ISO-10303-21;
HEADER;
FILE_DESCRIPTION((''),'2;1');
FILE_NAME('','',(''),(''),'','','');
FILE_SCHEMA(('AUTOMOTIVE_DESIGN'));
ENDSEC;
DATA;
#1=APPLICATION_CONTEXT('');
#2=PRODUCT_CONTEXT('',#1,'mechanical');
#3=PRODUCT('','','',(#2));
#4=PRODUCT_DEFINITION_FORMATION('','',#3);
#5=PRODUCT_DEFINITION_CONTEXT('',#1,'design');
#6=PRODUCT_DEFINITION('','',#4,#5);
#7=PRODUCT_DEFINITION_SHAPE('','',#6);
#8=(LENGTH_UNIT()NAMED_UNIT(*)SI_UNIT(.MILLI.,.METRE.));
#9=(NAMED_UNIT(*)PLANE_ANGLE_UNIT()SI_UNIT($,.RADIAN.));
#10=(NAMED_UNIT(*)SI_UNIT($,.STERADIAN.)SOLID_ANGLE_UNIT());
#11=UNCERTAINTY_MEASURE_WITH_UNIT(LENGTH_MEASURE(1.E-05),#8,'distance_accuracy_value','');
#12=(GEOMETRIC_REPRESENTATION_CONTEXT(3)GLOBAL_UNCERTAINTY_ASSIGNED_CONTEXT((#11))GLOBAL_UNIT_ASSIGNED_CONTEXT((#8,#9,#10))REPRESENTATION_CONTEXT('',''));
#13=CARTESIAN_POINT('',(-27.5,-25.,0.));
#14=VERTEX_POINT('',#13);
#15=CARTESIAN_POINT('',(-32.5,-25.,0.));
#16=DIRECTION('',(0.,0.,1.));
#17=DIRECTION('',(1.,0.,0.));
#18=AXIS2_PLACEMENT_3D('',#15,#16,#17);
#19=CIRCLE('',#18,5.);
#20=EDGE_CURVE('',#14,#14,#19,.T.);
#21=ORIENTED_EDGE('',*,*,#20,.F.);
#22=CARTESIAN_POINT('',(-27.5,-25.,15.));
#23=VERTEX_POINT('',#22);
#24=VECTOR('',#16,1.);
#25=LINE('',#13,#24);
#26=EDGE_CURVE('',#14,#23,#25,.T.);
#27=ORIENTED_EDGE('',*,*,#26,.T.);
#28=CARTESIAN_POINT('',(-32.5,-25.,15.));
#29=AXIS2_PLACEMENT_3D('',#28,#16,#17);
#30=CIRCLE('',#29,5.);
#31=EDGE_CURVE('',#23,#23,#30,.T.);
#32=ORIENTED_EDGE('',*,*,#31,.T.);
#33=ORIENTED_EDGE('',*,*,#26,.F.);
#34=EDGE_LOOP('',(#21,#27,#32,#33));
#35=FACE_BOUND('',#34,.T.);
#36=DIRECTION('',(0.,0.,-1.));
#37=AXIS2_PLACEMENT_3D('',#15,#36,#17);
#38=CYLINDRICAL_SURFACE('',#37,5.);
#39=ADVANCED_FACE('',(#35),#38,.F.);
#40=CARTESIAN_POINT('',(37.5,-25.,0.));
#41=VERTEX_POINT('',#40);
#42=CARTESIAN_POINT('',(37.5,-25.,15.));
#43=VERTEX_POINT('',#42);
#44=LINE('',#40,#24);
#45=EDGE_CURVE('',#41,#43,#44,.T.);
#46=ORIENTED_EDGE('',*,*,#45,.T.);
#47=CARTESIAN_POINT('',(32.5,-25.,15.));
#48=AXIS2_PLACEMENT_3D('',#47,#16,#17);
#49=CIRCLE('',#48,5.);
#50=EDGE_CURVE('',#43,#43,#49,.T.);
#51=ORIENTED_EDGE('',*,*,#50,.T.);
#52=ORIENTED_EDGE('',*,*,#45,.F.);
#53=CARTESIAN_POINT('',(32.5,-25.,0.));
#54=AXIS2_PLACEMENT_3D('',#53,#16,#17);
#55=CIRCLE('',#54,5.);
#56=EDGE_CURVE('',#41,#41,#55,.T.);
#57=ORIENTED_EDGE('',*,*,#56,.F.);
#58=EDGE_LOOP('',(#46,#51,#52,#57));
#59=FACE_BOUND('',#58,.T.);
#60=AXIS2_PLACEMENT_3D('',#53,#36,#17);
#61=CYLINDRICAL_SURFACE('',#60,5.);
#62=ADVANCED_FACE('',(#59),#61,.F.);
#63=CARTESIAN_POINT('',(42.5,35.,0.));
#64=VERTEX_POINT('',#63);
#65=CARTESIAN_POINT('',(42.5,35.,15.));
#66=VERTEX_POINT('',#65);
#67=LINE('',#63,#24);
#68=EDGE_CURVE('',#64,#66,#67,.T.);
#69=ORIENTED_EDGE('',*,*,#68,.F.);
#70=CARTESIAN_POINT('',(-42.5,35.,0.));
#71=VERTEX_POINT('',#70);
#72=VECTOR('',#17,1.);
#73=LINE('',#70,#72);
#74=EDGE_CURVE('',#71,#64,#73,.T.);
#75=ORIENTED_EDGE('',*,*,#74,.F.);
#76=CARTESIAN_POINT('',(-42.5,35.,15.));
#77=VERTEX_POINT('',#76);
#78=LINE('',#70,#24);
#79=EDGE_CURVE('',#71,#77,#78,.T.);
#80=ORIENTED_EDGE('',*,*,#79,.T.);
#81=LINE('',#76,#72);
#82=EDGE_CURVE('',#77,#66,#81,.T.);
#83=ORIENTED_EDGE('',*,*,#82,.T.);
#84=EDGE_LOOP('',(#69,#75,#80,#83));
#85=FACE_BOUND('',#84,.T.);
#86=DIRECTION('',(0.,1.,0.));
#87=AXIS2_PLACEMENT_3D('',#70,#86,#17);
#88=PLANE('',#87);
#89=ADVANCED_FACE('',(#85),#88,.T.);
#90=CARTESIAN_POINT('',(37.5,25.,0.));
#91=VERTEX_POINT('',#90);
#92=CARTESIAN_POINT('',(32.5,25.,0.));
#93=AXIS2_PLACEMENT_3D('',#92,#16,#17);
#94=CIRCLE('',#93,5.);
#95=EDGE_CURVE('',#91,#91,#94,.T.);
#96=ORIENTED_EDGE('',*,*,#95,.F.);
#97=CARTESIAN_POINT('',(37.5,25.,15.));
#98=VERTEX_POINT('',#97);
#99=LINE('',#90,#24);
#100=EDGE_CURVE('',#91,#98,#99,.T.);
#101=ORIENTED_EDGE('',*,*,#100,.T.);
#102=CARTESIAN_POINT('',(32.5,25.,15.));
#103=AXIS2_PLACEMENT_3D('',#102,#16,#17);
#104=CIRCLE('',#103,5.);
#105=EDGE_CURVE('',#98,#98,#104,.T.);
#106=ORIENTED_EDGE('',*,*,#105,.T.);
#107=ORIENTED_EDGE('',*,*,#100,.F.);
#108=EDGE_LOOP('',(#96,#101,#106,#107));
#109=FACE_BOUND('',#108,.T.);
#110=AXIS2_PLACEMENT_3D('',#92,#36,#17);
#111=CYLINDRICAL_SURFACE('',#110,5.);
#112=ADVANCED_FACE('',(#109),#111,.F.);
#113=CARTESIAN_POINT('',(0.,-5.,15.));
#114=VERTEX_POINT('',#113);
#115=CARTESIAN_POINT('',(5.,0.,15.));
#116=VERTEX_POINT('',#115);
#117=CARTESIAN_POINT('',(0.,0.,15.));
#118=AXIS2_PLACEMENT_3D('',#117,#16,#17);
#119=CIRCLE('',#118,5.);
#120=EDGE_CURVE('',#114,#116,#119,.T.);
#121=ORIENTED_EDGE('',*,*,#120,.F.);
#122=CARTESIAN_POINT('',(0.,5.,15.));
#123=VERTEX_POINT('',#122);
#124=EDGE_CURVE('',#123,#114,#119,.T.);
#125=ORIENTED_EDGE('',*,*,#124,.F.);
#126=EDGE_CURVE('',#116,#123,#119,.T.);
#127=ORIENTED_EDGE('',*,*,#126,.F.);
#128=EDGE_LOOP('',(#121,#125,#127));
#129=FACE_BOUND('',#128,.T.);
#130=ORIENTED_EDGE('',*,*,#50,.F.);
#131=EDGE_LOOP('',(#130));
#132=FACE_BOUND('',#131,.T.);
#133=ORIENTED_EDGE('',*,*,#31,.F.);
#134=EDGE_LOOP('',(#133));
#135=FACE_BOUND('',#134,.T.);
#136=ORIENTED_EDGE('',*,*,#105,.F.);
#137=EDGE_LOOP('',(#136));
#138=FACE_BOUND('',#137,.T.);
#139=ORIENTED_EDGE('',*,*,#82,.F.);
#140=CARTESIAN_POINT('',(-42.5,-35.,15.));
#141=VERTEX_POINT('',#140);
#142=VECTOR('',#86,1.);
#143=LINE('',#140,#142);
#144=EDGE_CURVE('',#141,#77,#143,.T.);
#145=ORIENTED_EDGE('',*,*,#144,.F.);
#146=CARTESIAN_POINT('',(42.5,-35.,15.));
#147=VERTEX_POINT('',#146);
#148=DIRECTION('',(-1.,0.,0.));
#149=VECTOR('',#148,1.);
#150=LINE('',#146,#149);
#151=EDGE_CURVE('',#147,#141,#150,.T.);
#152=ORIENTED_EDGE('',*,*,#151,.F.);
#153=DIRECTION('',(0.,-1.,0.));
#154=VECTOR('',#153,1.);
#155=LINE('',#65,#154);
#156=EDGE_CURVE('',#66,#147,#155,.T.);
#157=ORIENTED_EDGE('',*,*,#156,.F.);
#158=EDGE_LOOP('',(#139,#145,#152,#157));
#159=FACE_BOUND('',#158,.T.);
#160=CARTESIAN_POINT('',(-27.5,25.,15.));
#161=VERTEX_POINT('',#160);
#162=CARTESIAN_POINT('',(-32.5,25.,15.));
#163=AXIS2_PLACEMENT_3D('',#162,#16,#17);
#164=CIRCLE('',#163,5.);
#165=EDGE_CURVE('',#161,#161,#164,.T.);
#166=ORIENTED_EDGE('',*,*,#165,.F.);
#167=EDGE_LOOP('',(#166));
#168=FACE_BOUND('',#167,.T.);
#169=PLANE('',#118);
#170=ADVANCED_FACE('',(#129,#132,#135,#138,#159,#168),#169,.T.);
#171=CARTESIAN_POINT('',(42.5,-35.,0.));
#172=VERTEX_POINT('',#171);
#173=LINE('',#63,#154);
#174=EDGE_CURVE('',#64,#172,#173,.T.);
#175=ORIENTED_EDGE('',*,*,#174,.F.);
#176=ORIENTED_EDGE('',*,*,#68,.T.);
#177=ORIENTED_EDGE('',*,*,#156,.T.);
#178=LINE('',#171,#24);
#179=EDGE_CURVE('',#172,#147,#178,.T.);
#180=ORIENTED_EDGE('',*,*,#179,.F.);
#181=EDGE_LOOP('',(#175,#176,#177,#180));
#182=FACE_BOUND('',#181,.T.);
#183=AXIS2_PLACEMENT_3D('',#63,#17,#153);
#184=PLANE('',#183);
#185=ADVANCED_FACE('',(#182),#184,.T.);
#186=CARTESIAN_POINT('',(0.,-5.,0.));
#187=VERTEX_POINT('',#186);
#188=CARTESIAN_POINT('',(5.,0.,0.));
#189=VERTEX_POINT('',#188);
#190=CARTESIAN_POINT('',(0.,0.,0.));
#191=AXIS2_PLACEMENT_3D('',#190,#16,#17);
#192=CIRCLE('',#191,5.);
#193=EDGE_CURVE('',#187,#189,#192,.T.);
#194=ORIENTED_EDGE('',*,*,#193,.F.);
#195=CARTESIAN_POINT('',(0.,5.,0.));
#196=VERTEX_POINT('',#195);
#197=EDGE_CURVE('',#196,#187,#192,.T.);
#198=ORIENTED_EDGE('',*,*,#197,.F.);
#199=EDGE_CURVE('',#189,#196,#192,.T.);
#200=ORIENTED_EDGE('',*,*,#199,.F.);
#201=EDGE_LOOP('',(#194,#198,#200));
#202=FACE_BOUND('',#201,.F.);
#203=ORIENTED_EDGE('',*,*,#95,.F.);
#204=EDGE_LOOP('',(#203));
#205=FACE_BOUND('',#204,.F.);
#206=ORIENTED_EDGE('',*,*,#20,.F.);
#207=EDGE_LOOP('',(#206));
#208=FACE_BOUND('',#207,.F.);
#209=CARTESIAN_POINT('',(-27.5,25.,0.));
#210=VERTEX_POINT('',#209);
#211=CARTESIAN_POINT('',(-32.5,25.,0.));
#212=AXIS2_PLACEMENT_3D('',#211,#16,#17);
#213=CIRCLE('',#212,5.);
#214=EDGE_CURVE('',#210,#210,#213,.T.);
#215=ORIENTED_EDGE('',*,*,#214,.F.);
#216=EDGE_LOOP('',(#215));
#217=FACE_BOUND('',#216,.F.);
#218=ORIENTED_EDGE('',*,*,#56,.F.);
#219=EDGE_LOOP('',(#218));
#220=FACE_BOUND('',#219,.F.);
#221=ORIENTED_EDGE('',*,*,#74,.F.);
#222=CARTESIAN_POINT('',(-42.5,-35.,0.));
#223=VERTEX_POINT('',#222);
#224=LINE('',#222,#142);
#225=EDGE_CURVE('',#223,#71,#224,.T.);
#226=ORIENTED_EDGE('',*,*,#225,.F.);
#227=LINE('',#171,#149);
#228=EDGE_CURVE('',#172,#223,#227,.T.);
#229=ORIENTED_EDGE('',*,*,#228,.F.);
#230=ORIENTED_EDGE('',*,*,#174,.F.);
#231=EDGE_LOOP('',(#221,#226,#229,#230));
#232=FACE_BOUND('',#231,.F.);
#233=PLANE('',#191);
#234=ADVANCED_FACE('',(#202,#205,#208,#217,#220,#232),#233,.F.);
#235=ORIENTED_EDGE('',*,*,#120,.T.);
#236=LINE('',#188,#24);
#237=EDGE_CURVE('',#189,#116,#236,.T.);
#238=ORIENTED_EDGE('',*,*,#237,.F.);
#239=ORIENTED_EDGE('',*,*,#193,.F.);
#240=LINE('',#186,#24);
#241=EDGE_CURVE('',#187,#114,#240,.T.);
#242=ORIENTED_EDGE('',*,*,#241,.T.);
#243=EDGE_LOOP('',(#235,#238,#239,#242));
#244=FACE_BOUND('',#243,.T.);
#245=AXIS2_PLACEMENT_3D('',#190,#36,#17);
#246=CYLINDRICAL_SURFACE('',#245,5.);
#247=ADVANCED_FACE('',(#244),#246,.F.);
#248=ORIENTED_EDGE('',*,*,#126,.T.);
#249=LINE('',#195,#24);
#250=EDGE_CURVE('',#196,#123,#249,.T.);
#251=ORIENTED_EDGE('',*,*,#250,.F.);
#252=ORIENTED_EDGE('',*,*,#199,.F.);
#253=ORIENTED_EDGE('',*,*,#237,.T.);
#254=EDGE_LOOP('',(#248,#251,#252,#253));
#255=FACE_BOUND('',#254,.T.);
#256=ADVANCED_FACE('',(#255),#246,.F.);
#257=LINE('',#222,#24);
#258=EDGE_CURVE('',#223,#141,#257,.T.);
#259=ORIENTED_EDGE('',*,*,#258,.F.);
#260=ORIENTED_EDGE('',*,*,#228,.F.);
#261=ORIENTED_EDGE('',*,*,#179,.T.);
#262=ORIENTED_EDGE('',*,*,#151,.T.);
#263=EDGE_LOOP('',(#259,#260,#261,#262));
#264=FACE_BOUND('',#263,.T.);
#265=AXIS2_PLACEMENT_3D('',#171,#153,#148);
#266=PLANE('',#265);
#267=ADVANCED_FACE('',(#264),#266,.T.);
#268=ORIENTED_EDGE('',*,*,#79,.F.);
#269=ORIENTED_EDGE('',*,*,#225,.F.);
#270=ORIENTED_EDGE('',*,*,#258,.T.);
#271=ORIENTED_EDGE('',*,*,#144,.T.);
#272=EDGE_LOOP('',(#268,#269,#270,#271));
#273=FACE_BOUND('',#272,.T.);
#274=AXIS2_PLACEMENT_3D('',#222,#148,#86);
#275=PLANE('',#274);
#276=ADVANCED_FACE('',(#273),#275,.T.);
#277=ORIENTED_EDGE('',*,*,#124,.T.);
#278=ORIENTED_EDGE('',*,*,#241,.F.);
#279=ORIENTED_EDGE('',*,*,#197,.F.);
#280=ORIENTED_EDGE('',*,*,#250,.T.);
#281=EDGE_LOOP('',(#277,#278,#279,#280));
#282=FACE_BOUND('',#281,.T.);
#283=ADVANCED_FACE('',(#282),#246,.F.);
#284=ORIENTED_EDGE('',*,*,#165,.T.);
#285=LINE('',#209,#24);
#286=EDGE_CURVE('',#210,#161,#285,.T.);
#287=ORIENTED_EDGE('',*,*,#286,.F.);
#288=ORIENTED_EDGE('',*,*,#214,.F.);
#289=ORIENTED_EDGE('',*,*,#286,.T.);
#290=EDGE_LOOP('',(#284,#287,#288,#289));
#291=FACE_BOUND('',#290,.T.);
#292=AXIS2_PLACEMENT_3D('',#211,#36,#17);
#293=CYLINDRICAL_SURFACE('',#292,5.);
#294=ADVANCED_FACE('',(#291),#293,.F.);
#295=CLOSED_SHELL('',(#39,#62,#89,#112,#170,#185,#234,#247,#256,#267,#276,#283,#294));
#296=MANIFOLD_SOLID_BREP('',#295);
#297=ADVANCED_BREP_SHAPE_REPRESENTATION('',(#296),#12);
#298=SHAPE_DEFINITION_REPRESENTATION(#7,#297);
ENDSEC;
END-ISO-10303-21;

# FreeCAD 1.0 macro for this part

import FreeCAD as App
import Part
import Sketcher
Q = App.Units.Quantity


def add_polygon(sketch, points):
    """Adds a closed chain of lines whose ends are joined by coincident constraints."""
    first, n = sketch.GeometryCount, len(points)
    for a, b in zip(points, points[1:] + points[:1]):
        sketch.addGeometry(Part.LineSegment(App.Vector(*a, 0), App.Vector(*b, 0)), False)
    for i in range(n):
        sketch.addConstraint(Sketcher.Constraint("Coincident", first + i, 2, first + (i + 1) % n, 1))

doc = App.newDocument("Part")
params = doc.addObject("Spreadsheet::Sheet", "Params")
for row, (alias, value) in enumerate([
    ("sketch1_diameter", "10 mm"),
    ("sketch1_width", "85 mm"),
    ("sketch1_height", "70 mm"),
    ("pad1_length", "15 mm"),
], start=1):
    params.set(f"A{row}", alias)
    params.set(f"B{row}", "=" + value)
    params.setAlias(f"B{row}", alias)

body = doc.addObject("PartDesign::Body", "Body")

sketch1 = body.newObject("Sketcher::SketchObject", "Sketch")
sketch1.AttachmentSupport = (doc.getObject("XY_Plane"), [""])
sketch1.MapMode = "FlatFace"
add_polygon(sketch1, [(42, 35), (-42, 35), (-42, -35), (42, -35)])
sketch1.addGeometry(Part.Circle(App.Vector(-32, -25, 0), App.Vector(0, 0, 1), 5), False)
sketch1.addGeometry(Part.Circle(App.Vector(32, -25, 0), App.Vector(0, 0, 1), 5), False)
sketch1.addGeometry(Part.Circle(App.Vector(-32, 25, 0), App.Vector(0, 0, 1), 5), False)
sketch1.addGeometry(Part.Circle(App.Vector(0, 0, 0), App.Vector(0, 0, 1), 5), False)
sketch1.addGeometry(Part.Circle(App.Vector(32, 25, 0), App.Vector(0, 0, 1), 5), False)
sketch1.addConstraint([
    Sketcher.Constraint("Horizontal", 0),
    Sketcher.Constraint("Vertical", 1),
    Sketcher.Constraint("Horizontal", 2),
    Sketcher.Constraint("Vertical", 3),
    Sketcher.Constraint("Coincident", 7, 3, -1, 1),
    Sketcher.Constraint("Equal", 4, 5),
    Sketcher.Constraint("Equal", 5, 6),
    Sketcher.Constraint("Equal", 6, 7),
    Sketcher.Constraint("Equal", 7, 8),
    Sketcher.Constraint("Symmetric", 5, 3, 6, 3, -1, 1),
    Sketcher.Constraint("Symmetric", 4, 3, 8, 3, -1, 1),
    Sketcher.Constraint("Symmetric", 0, 2, 2, 2, -1, 1),
    Sketcher.Constraint("Symmetric", 4, 3, 5, 3, -2),
    Sketcher.Constraint("Diameter", 4, Q("10 mm")),
    Sketcher.Constraint("DistanceX", 0, 2, 0, 1, Q("85 mm")),
    Sketcher.Constraint("DistanceY", 1, 2, 1, 1, Q("70 mm")),
    Sketcher.Constraint("DistanceX", 4, 3, 5, 3, Q("65 mm")),
    Sketcher.Constraint("DistanceY", 6, 3, 0, 2, Q("10 mm")),
])
sketch1.setExpression("Constraints[17]", "Params.sketch1_diameter")
sketch1.setExpression("Constraints[18]", "Params.sketch1_width")
sketch1.setExpression("Constraints[19]", "Params.sketch1_height")
pad1 = body.newObject("PartDesign::Pad", "Pad")
pad1.Profile = sketch1
pad1.setExpression("Length", "Params.pad1_length")

doc.recompute()
